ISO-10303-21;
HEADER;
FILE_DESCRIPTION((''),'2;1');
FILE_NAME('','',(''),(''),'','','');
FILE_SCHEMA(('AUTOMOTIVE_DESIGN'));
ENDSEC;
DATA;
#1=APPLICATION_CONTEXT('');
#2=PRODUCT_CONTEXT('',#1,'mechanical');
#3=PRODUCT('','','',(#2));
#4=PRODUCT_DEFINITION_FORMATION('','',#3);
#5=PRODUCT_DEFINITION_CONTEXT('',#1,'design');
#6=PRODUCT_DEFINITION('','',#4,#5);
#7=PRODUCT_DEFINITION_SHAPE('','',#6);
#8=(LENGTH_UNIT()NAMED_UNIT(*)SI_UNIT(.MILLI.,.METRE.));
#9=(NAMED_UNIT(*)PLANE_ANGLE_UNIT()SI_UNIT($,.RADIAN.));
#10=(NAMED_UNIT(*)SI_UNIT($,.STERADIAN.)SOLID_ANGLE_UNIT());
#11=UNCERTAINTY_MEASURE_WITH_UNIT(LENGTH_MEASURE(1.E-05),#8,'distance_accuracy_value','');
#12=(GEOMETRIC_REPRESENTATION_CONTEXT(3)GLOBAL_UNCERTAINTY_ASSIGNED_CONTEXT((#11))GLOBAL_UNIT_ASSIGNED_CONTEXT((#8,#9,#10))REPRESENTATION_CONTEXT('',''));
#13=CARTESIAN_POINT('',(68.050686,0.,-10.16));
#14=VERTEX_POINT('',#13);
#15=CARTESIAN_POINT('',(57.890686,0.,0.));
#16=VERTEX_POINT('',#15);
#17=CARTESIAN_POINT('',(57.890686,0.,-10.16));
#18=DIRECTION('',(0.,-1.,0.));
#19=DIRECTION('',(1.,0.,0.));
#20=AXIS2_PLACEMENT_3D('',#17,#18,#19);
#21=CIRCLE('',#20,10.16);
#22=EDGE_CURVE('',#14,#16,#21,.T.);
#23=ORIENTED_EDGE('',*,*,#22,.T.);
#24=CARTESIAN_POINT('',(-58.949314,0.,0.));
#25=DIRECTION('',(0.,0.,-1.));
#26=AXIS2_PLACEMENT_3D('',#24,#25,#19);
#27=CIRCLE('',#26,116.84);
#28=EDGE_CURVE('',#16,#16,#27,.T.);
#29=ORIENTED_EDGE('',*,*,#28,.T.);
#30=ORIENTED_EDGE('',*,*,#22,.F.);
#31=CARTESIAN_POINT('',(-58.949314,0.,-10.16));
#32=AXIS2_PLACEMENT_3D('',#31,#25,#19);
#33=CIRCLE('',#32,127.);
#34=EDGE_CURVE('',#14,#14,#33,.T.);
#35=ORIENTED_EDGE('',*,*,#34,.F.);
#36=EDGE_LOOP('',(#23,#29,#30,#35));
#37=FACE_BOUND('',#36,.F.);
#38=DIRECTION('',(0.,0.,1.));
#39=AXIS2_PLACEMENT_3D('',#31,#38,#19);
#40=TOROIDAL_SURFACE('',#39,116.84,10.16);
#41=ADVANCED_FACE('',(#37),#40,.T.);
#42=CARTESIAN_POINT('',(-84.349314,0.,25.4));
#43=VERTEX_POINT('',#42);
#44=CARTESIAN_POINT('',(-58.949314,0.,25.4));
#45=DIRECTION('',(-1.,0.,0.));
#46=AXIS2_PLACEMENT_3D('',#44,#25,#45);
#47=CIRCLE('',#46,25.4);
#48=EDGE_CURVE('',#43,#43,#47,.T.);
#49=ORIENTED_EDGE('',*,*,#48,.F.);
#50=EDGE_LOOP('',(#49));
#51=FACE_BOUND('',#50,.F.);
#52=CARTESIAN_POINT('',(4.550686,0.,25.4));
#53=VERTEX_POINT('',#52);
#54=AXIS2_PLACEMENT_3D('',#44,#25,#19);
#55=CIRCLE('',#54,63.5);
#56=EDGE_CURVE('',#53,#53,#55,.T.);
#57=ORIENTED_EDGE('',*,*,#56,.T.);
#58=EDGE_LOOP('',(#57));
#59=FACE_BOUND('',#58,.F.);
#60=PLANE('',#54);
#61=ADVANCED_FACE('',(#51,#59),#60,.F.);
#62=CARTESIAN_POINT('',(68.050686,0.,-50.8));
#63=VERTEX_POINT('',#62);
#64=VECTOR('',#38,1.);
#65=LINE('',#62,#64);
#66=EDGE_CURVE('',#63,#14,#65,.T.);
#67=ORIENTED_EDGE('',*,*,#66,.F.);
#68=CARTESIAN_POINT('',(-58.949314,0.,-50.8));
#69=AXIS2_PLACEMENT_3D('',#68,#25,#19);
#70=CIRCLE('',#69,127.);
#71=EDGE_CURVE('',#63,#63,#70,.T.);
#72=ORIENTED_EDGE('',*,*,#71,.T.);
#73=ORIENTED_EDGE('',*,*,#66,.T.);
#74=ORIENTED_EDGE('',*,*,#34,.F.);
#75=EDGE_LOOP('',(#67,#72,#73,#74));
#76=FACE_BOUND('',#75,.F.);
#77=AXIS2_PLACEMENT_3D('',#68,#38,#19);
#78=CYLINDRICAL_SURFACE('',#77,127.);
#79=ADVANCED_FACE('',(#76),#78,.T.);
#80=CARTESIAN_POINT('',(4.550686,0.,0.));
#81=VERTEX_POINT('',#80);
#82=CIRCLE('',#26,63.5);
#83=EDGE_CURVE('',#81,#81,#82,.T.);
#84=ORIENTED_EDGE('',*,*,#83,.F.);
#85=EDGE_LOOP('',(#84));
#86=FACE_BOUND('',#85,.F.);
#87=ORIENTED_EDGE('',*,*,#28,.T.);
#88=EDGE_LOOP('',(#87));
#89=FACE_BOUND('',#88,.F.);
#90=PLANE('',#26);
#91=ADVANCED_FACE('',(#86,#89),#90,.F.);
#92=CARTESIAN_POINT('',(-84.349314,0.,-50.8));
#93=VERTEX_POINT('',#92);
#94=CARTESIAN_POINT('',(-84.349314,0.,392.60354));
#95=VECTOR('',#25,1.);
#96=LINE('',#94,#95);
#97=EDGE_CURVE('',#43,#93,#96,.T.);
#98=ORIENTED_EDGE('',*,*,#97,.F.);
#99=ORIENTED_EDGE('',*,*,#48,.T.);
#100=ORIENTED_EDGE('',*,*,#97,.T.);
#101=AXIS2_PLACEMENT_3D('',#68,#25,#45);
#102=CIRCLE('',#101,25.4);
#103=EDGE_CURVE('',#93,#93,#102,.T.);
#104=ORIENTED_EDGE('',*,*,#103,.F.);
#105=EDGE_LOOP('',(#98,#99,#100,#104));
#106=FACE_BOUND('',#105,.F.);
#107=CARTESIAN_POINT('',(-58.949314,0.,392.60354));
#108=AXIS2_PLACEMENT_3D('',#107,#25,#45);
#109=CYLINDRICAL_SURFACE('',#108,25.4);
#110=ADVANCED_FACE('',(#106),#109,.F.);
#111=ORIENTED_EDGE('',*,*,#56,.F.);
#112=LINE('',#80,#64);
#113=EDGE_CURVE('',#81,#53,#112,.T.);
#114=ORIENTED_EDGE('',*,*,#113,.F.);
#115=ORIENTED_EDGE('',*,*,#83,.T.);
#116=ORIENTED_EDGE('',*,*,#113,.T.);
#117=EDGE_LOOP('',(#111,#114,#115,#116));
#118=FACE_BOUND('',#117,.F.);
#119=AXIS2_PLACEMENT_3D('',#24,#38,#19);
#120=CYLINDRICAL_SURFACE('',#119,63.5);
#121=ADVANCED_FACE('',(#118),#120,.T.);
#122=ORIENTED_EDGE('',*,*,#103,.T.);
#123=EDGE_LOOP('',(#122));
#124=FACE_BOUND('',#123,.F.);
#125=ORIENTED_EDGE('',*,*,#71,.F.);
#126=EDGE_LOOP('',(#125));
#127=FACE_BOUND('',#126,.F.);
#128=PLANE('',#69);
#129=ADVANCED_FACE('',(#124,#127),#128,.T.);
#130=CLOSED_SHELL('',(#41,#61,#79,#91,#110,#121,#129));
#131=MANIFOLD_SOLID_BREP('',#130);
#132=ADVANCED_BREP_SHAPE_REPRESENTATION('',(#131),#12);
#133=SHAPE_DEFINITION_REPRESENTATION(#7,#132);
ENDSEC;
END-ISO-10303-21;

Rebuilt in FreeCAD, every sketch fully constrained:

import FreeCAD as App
import Part
import Sketcher
from FreeCAD import Vector
Q = App.Units.Quantity


def edges_at(feature, points):
    """Names of the edges that pass closest to the given points."""
    edges = feature.Shape.Edges
    near = lambda p: min(range(len(edges)), key=lambda i: edges[i].distToShape(Part.Vertex(*p))[0])
    return sorted({f"Edge{near(p) + 1}" for p in points})


def add_polygon(sketch, points):
    """Adds a closed chain of lines whose ends are joined by coincident constraints."""
    first, n = sketch.GeometryCount, len(points)
    for a, b in zip(points, points[1:] + points[:1]):
        sketch.addGeometry(Part.LineSegment(App.Vector(*a, 0), App.Vector(*b, 0)), False)
    for i in range(n):
        sketch.addConstraint(Sketcher.Constraint("Coincident", first + i, 2, first + (i + 1) % n, 1))

doc = App.newDocument("Part")
body = doc.addObject("PartDesign::Body", "Body")

sketch1 = body.newObject("Sketcher::SketchObject", "Sketch")
sketch1.AttachmentSupport = (doc.getObject("XZ_Plane"), [""])
sketch1.MapMode = "FlatFace"
add_polygon(sketch1, [(-59, 25), (-59, -51), (68, -51), (68, 0), (5, 0), (5, 25)])
sketch1.addGeometry(Part.LineSegment(Vector(-59, 25, 0), Vector(-59, -51, 0)), True)
sketch1.addConstraint([
    Sketcher.Constraint("Vertical", 0),
    Sketcher.Constraint("Horizontal", 1),
    Sketcher.Constraint("Vertical", 2),
    Sketcher.Constraint("Horizontal", 3),
    Sketcher.Constraint("Vertical", 4),
    Sketcher.Constraint("Horizontal", 5),
    Sketcher.Constraint("Vertical", 6),
    Sketcher.Constraint("Coincident", 6, 1, 5, 2),
    Sketcher.Constraint("PointOnObject", 2, 2, -1),
    Sketcher.Constraint("Horizontal", 1, 2, 6, 2),
    Sketcher.Constraint("Equal", 3, 5),
    Sketcher.Constraint("DistanceX", 1, 1, 1, 2, Q("5 in")),
    Sketcher.Constraint("DistanceY", 0, 2, 0, 1, Q("3 in")),
    Sketcher.Constraint("DistanceY", 2, 1, 2, 2, Q("2 in")),
    Sketcher.Constraint("DistanceX", 0, 2, -1, 1, 58.949314),
])
revolution = body.newObject("PartDesign::Revolution", "Revolution")
revolution.Profile = sketch1
revolution.ReferenceAxis = (sketch1, ["Axis0"])
revolution.Angle = 360

sketch2 = body.newObject("Sketcher::SketchObject", "Sketch001")
sketch2.AttachmentSupport = (doc.getObject("XY_Plane"), [""])
sketch2.MapMode = "FlatFace"
sketch2.AttachmentOffset = App.Placement(Vector(0, 0, 1 * 25.4), App.Rotation())
sketch2.addGeometry(Part.Circle(Vector(-59, 0, 0), Vector(0, 0, 1), 25), False)
sketch2.addConstraint([
    Sketcher.Constraint("PointOnObject", 0, 3, -1),
    Sketcher.Constraint("Diameter", 0, Q("2 in")),
    Sketcher.Constraint("DistanceX", 0, 3, -1, 1, 58.949314),
])
doc.recompute()
hole = body.newObject("PartDesign::Hole", "Hole")
hole.Profile = sketch2
hole.ThreadType = "None"
hole.Diameter = Q("2 in")
hole.DepthType = "ThroughAll"
doc.recompute()

fillet = body.newObject("PartDesign::Fillet", "Fillet")
fillet.Base = (hole, edges_at(hole, [(-185.949, 0, 0)]))
fillet.Radius = Q("0.4 in")

doc.recompute()
